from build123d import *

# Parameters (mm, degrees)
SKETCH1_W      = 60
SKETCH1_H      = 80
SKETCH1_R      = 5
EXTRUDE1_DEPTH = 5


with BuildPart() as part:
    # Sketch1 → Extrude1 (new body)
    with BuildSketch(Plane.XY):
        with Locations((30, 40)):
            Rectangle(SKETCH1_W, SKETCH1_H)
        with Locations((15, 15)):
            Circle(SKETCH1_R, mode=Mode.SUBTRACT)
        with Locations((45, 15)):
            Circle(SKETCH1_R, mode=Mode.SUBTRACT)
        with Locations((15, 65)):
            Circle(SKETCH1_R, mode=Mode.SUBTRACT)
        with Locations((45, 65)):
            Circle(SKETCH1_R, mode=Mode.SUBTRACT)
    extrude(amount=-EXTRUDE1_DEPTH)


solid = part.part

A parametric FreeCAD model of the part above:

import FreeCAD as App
import Part
import Sketcher

V = App.Vector


def add_polygon(sketch, points):
    """Adds a closed chain of lines whose ends are joined by coincident constraints."""
    first, n = sketch.GeometryCount, len(points)
    for a, b in zip(points, points[1:] + points[:1]):
        sketch.addGeometry(Part.LineSegment(App.Vector(*a, 0), App.Vector(*b, 0)), False)
    for i in range(n):
        sketch.addConstraint(Sketcher.Constraint("Coincident", first + i, 2, first + (i + 1) % n, 1))

doc = App.newDocument("Part")
body = doc.addObject("PartDesign::Body", "Body")

sketch1 = doc.addObject("Sketcher::SketchObject", "Sketch")
body.addObject(sketch1)
sketch1.AttachmentSupport = (doc.XY_Plane, [""])
sketch1.MapMode = "FlatFace"
add_polygon(sketch1, [(0, 80), (0, 0), (60, 0), (60, 80)])
sketch1.addGeometry(Part.Circle(V(15, 15, 0), V(0, 0, 1), 5), False)
sketch1.addGeometry(Part.Circle(V(45, 15, 0), V(0, 0, 1), 5), False)
sketch1.addGeometry(Part.Circle(V(15, 65, 0), V(0, 0, 1), 5), False)
sketch1.addGeometry(Part.Circle(V(45, 65, 0), V(0, 0, 1), 5), False)
sketch1.addConstraint([
    Sketcher.Constraint("Vertical", 0),
    Sketcher.Constraint("Horizontal", 1),
    Sketcher.Constraint("Vertical", 2),
    Sketcher.Constraint("Horizontal", 3),
    Sketcher.Constraint("Coincident", 0, 2, -1, 1),
    Sketcher.Constraint("Equal", 4, 5),
    Sketcher.Constraint("Equal", 5, 6),
    Sketcher.Constraint("Equal", 6, 7),
    Sketcher.Constraint("Horizontal", 4, 3, 5, 3),
    Sketcher.Constraint("Horizontal", 6, 3, 7, 3),
    Sketcher.Constraint("Vertical", 4, 3, 6, 3),
    Sketcher.Constraint("Vertical", 5, 3, 7, 3),
    Sketcher.Constraint("Diameter", 4, 10.0),
    Sketcher.Constraint("DistanceX", 1, 1, 1, 2, 60.0),
    Sketcher.Constraint("DistanceY", 0, 2, 0, 1, 80.0),
    Sketcher.Constraint("DistanceX", -1, 1, 4, 3, 15.0),
    Sketcher.Constraint("DistanceY", -1, 1, 4, 3, 15.0),
    Sketcher.Constraint("DistanceX", -1, 1, 5, 3, 45.0),
    Sketcher.Constraint("DistanceY", -1, 1, 6, 3, 65.0),
])
pad1 = doc.addObject("PartDesign::Pad", "Pad")
body.addObject(pad1)
pad1.Profile = sketch1
pad1.Length = 5
pad1.Reversed = True

doc.recompute()
